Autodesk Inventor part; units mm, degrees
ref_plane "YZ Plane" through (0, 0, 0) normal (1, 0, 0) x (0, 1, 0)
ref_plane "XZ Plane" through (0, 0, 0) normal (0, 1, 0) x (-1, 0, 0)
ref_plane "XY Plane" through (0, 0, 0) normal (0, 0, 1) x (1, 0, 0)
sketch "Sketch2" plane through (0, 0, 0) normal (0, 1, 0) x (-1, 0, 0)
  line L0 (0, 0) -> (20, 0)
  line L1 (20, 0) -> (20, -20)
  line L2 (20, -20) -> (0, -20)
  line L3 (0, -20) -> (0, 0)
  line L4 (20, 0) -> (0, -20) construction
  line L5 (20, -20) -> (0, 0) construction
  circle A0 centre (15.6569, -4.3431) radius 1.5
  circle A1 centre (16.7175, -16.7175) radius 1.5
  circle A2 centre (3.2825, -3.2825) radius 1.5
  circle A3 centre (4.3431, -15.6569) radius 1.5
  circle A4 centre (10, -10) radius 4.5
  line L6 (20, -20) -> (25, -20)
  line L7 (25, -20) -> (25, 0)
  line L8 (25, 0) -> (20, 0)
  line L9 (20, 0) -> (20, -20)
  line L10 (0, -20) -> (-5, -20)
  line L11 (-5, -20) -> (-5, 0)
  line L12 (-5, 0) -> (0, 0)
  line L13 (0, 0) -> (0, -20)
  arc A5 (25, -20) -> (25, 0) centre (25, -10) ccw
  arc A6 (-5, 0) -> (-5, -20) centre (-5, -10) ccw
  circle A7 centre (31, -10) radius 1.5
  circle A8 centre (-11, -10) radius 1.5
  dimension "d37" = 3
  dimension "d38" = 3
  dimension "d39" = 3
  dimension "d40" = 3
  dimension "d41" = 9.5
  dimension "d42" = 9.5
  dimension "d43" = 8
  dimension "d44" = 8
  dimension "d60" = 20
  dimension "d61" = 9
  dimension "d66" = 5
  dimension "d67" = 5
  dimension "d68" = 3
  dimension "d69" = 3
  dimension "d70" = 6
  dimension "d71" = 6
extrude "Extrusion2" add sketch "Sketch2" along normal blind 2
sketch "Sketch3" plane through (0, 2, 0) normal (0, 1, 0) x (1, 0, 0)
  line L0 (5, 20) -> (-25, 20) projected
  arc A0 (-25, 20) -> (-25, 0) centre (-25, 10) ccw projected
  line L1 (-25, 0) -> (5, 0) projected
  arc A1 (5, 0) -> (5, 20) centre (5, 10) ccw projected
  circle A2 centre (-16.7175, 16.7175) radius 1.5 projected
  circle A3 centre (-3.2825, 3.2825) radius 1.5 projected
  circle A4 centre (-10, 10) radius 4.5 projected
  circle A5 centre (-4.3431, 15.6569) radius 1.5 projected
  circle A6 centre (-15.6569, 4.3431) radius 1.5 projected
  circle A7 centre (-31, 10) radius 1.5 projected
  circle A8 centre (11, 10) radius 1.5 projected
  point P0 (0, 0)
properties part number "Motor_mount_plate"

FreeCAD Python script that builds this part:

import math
import FreeCAD as App
import Part
import Sketcher
from FreeCAD import Vector
Q = App.Units.Quantity

doc = App.newDocument("Part")
body = doc.addObject("PartDesign::Body", "Body")

# Sketch on XZ plane
sketch1 = body.newObject("Sketcher::SketchObject", "Sketch")
sketch1.AttachmentSupport = (doc.getObject("XZ_Plane"), [""])
sketch1.MapMode = "FlatFace"
sketch1.addGeometry([
    Part.ArcOfCircle(Part.Circle(Vector(5, -10, 0), Vector(0, 0, 1), 10), math.radians(-90), math.radians(90)),  # 0
    Part.LineSegment(Vector(5, -20, 0), Vector(-25, -20, 0)),  # 1
    Part.ArcOfCircle(Part.Circle(Vector(-25, -10, 0), Vector(0, 0, 1), 10), math.radians(90), math.radians(270)),  # 2
    Part.LineSegment(Vector(-25, 0, 0), Vector(5, 0, 0)),  # 3
    Part.Circle(Vector(-4.3, -15.7, 0), Vector(0, 0, 1), 1.5),  # 4
    Part.Circle(Vector(-16.7, -16.7, 0), Vector(0, 0, 1), 1.5),  # 5
    Part.Circle(Vector(-3.3, -3.3, 0), Vector(0, 0, 1), 1.5),  # 6
    Part.Circle(Vector(-10, -10, 0), Vector(0, 0, 1), 4.5),  # 7
    Part.Circle(Vector(-15.7, -4.3, 0), Vector(0, 0, 1), 1.5),  # 8
    Part.Circle(Vector(-31, -10, 0), Vector(0, 0, 1), 1.5),  # 9
    Part.Circle(Vector(11, -10, 0), Vector(0, 0, 1), 1.5),  # 10
], False)
sketch1.addConstraint([
    Sketcher.Constraint("Tangent", 0, 1, 1, 1),
    Sketcher.Constraint("Tangent", 1, 2, 2, 2),
    Sketcher.Constraint("Tangent", 2, 1, 3, 1),
    Sketcher.Constraint("Tangent", 3, 2, 0, 2),
    Sketcher.Constraint("Horizontal", 1),
    Sketcher.Constraint("Horizontal", 3),
    Sketcher.Constraint("Equal", 4, 5),
    Sketcher.Constraint("Equal", 5, 6),
    Sketcher.Constraint("Equal", 6, 8),
    Sketcher.Constraint("Equal", 8, 9),
    Sketcher.Constraint("Equal", 9, 10),
    Sketcher.Constraint("PointOnObject", 2, 1, -1),
    Sketcher.Constraint("Horizontal", 2, 3, 7, 3),
    Sketcher.Constraint("Horizontal", 7, 3, 9, 3),
    Sketcher.Constraint("Horizontal", 9, 3, 10, 3),
    Sketcher.Constraint("Diameter", 4, Q("3 mm")),
    Sketcher.Constraint("Diameter", 7, Q("9 mm")),
    Sketcher.Constraint("Radius", 0, Q("10 mm")),
    Sketcher.Constraint("DistanceX", -1, 1, 0, 3, Q("5 mm")),
    Sketcher.Constraint("DistanceX", 9, 3, 2, 3, Q("6 mm")),
    Sketcher.Constraint("DistanceX", 0, 3, 10, 3, Q("6 mm")),
    Sketcher.Constraint("DistanceX", 1, 2, 1, 1, Q("30 mm")),
    Sketcher.Constraint("DistanceX", 7, 3, -1, 1, Q("10 mm")),
    Sketcher.Constraint("DistanceX", 4, 3, -1, 1, Q("4.343 mm")),
    Sketcher.Constraint("DistanceY", 4, 3, -1, 1, Q("15.657 mm")),
    Sketcher.Constraint("DistanceX", 8, 3, -1, 1, Q("15.657 mm")),
    Sketcher.Constraint("DistanceY", 8, 3, -1, 1, Q("4.343 mm")),
    Sketcher.Constraint("DistanceX", 5, 3, 6, 3, Q("13.435 mm")),
    Sketcher.Constraint("DistanceY", 5, 3, 6, 3, Q("13.435 mm")),
    Sketcher.Constraint("DistanceX", 5, 3, -1, 1, Q("16.7175 mm")),
    Sketcher.Constraint("DistanceY", 5, 3, -1, 1, Q("16.7175 mm")),
])
pad1 = body.newObject("PartDesign::Pad", "Pad")
pad1.Profile = sketch1
pad1.Length = 2
pad1.Reversed = True

doc.recompute()
